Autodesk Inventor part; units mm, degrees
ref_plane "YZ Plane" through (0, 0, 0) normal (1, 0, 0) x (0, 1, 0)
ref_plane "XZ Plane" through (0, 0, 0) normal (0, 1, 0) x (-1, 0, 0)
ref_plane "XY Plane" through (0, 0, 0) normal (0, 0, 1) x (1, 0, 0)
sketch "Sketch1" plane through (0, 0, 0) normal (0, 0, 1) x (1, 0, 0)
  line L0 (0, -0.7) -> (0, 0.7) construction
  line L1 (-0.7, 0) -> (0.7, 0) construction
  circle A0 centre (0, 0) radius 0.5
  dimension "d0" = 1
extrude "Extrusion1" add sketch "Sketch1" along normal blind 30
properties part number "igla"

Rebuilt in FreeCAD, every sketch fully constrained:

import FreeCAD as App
import Part
import Sketcher
Q = App.Units.Quantity

doc = App.newDocument("Part")
body = doc.addObject("PartDesign::Body", "Body")

sketch1 = doc.addObject("Sketcher::SketchObject", "Sketch")
body.addObject(sketch1)
sketch1.AttachmentSupport = (doc.XY_Plane, [""])
sketch1.MapMode = "FlatFace"
sketch1.addGeometry(Part.Circle(App.Vector(0, 0, 0), App.Vector(0, 0, 1), 0.5), False)
sketch1.addConstraint([
    Sketcher.Constraint("Coincident", 0, 3, -1, 1),
    Sketcher.Constraint("Diameter", 0, Q("1 mm")),
])
pad1 = doc.addObject("PartDesign::Pad", "Pad")
body.addObject(pad1)
pad1.Profile = sketch1
pad1.Length = 30

doc.recompute()
